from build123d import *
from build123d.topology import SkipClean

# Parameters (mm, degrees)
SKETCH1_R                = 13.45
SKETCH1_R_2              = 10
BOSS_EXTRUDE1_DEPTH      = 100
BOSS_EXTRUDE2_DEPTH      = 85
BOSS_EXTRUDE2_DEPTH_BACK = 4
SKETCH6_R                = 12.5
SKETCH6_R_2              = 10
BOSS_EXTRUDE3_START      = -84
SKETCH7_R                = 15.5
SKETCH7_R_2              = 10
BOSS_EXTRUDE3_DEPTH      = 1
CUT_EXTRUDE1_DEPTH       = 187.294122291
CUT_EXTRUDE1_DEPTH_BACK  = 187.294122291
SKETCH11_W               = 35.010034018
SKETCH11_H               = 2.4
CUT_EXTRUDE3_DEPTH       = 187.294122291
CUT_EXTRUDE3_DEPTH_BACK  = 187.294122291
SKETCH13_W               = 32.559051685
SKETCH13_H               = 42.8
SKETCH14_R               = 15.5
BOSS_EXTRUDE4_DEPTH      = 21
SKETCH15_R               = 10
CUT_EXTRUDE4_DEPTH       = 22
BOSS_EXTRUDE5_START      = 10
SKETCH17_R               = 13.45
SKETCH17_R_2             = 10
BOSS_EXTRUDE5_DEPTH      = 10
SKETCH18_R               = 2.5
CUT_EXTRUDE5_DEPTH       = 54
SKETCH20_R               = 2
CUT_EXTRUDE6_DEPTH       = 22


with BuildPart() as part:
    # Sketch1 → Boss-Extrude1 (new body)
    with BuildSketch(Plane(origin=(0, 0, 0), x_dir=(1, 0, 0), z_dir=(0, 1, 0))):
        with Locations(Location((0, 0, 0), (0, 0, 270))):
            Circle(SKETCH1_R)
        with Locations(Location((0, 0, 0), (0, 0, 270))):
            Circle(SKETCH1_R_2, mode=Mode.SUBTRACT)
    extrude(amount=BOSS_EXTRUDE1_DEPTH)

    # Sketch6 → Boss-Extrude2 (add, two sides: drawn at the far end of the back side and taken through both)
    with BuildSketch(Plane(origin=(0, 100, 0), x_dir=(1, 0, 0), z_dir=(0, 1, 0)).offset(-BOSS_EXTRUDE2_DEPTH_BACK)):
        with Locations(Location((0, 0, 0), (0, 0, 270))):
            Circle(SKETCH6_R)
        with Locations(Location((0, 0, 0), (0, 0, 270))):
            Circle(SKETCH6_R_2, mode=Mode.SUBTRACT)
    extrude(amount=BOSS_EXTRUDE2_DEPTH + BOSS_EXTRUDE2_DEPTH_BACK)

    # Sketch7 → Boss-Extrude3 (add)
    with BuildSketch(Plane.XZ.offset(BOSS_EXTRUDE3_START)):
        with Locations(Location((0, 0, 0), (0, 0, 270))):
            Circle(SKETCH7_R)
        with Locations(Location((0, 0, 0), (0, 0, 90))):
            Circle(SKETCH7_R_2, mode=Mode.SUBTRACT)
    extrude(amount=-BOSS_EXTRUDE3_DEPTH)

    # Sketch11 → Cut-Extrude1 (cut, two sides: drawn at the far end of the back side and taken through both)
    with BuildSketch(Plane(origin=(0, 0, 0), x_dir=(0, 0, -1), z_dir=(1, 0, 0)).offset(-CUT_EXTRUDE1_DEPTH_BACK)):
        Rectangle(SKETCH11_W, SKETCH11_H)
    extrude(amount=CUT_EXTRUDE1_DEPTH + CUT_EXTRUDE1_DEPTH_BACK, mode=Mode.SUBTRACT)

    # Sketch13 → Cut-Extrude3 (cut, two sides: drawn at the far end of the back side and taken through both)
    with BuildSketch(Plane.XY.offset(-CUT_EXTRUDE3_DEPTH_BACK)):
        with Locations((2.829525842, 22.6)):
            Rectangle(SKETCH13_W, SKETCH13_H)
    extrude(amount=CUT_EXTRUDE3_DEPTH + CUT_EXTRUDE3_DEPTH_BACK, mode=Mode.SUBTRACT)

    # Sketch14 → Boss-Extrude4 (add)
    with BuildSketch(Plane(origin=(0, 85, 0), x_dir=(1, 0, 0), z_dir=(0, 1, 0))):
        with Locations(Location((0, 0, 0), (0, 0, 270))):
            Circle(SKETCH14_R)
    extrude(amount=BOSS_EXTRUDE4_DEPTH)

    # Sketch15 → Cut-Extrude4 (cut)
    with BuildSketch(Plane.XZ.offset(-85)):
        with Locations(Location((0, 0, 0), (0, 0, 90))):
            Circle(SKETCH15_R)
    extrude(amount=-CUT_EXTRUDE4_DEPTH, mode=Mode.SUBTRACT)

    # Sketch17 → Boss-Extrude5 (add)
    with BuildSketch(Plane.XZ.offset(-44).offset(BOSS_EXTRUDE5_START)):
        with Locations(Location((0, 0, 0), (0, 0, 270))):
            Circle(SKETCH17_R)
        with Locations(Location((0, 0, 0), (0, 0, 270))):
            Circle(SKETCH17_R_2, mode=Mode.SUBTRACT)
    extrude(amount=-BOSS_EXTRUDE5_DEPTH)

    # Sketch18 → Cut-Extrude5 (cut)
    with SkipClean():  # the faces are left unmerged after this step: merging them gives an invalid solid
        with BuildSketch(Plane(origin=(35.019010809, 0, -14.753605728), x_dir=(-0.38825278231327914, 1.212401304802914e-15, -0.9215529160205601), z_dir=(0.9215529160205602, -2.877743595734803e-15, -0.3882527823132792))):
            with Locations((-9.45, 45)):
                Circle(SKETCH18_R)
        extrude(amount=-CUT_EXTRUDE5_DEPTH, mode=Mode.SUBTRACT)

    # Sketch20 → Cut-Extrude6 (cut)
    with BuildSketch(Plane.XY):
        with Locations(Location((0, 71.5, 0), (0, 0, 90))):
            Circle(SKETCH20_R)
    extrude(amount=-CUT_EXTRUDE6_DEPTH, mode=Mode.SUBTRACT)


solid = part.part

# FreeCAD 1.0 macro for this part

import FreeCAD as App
import Part
import Sketcher

doc = App.newDocument("Part")
body = doc.addObject("PartDesign::Body", "Body")

# Sketch on XZ plane
sketch1 = body.newObject("Sketcher::SketchObject", "Sketch")
sketch1.AttachmentSupport = (doc.getObject("XZ_Plane"), [""])
sketch1.MapMode = "FlatFace"
sketch1.addGeometry([
    Part.Circle(App.Vector(0, 0, 0), App.Vector(0, 0, 1), 13),
    Part.Circle(App.Vector(0, 0, 0), App.Vector(0, 0, 1), 10),
], False)
sketch1.addConstraint([
    Sketcher.Constraint("Coincident", 0, 3, -1, 1),
    Sketcher.Constraint("Coincident", 1, 3, -1, 1),
    Sketcher.Constraint("Diameter", 1, 20.0),
    Sketcher.Constraint("Diameter", 0, 26.9),
])
pad1 = body.newObject("PartDesign::Pad", "Pad")
pad1.Profile = sketch1
pad1.Length = 100
pad1.Reversed = True

# Sketch on XZ plane
sketch2 = body.newObject("Sketcher::SketchObject", "Sketch001")
sketch2.AttachmentSupport = (doc.getObject("XZ_Plane"), [""])
sketch2.MapMode = "FlatFace"
sketch2.AttachmentOffset = App.Placement(App.Vector(0, 0, -100), App.Rotation())
sketch2.addGeometry([
    Part.Circle(App.Vector(0, 0, 0), App.Vector(0, 0, 1), 12),
    Part.Circle(App.Vector(0, 0, 0), App.Vector(0, 0, 1), 10),
], False)
sketch2.addConstraint([
    Sketcher.Constraint("Coincident", 0, 3, -1, 1),
    Sketcher.Constraint("Coincident", 1, 3, -1, 1),
    Sketcher.Constraint("Diameter", 0, 25.0),
    Sketcher.Constraint("Diameter", 1, 20.0),
])
pad2 = body.newObject("PartDesign::Pad", "Pad001")
pad2.Profile = sketch2
pad2.Type = "TwoLengths"
pad2.Length = 85
pad2.Length2 = 4
pad2.Reversed = True

# Sketch on XZ plane
sketch3 = body.newObject("Sketcher::SketchObject", "Sketch002")
sketch3.AttachmentSupport = (doc.getObject("XZ_Plane"), [""])
sketch3.MapMode = "FlatFace"
sketch3.AttachmentOffset = App.Placement(App.Vector(0, 0, -84), App.Rotation())
sketch3.addGeometry([
    Part.Circle(App.Vector(0, 0, 0), App.Vector(0, 0, 1), 16),
    Part.Circle(App.Vector(0, 0, 0), App.Vector(0, 0, 1), 10),
], False)
sketch3.addConstraint([
    Sketcher.Constraint("Coincident", 0, 3, -1, 1),
    Sketcher.Constraint("Coincident", 1, 3, -1, 1),
    Sketcher.Constraint("Diameter", 0, 31.0),
    Sketcher.Constraint("Diameter", 1, 20.0),
])
pad3 = body.newObject("PartDesign::Pad", "Pad002")
pad3.Profile = sketch3
pad3.Length = 1
pad3.Reversed = True

# Sketch on YZ plane
sketch4 = body.newObject("Sketcher::SketchObject", "Sketch003")
sketch4.AttachmentSupport = (doc.getObject("YZ_Plane"), [""])
sketch4.MapMode = "FlatFace"
sketch4.addGeometry([
    Part.LineSegment(App.Vector(1.2, 17.5, 0), App.Vector(-1.2, 17.5, 0)),
    Part.LineSegment(App.Vector(-1.2, 17.5, 0), App.Vector(-1.2, -17.5, 0)),
    Part.LineSegment(App.Vector(-1.2, -17.5, 0), App.Vector(1.2, -17.5, 0)),
    Part.LineSegment(App.Vector(1.2, -17.5, 0), App.Vector(1.2, 17.5, 0)),
], False)
sketch4.addConstraint([
    Sketcher.Constraint("Coincident", 0, 2, 1, 1),
    Sketcher.Constraint("Coincident", 1, 2, 2, 1),
    Sketcher.Constraint("Coincident", 2, 2, 3, 1),
    Sketcher.Constraint("Coincident", 3, 2, 0, 1),
    Sketcher.Constraint("Horizontal", 0),
    Sketcher.Constraint("Vertical", 1),
    Sketcher.Constraint("Horizontal", 2),
    Sketcher.Constraint("Vertical", 3),
    Sketcher.Constraint("Symmetric", 0, 2, 2, 2, -1, 1),
    Sketcher.Constraint("DistanceX", 0, 2, 0, 1, 2.4),
    Sketcher.Constraint("DistanceY", 1, 2, 1, 1, 35.010034),
])
pocket1 = body.newObject("PartDesign::Pocket", "Pocket")
pocket1.Profile = sketch4
pocket1.Type = "ThroughAll"
pocket1.Midplane = True

# Sketch on XY plane
sketch5 = body.newObject("Sketcher::SketchObject", "Sketch004")
sketch5.AttachmentSupport = (doc.getObject("XY_Plane"), [""])
sketch5.MapMode = "FlatFace"
sketch5.addGeometry([
    Part.LineSegment(App.Vector(-13, 44, 0), App.Vector(-13, 1, 0)),
    Part.LineSegment(App.Vector(-13, 1, 0), App.Vector(19, 1, 0)),
    Part.LineSegment(App.Vector(19, 1, 0), App.Vector(19, 44, 0)),
    Part.LineSegment(App.Vector(19, 44, 0), App.Vector(-13, 44, 0)),
], False)
sketch5.addConstraint([
    Sketcher.Constraint("Coincident", 0, 2, 1, 1),
    Sketcher.Constraint("Coincident", 1, 2, 2, 1),
    Sketcher.Constraint("Coincident", 2, 2, 3, 1),
    Sketcher.Constraint("Coincident", 3, 2, 0, 1),
    Sketcher.Constraint("Vertical", 0),
    Sketcher.Constraint("Horizontal", 1),
    Sketcher.Constraint("Vertical", 2),
    Sketcher.Constraint("Horizontal", 3),
    Sketcher.Constraint("DistanceY", 0, 2, 0, 1, 42.8),
    Sketcher.Constraint("DistanceY", -1, 1, 2, 2, 44.0),
    Sketcher.Constraint("DistanceX", 0, 2, -1, 1, 13.45),
    Sketcher.Constraint("DistanceX", 1, 1, 1, 2, 32.559052),
])
pocket2 = body.newObject("PartDesign::Pocket", "Pocket001")
pocket2.Profile = sketch5
pocket2.Type = "ThroughAll"
pocket2.Midplane = True

# Sketch on XZ plane
sketch6 = body.newObject("Sketcher::SketchObject", "Sketch005")
sketch6.AttachmentSupport = (doc.getObject("XZ_Plane"), [""])
sketch6.MapMode = "FlatFace"
sketch6.AttachmentOffset = App.Placement(App.Vector(0, 0, -85), App.Rotation())
sketch6.addGeometry(Part.Circle(App.Vector(0, 0, 0), App.Vector(0, 0, 1), 16), False)
sketch6.addConstraint([
    Sketcher.Constraint("Coincident", 0, 3, -1, 1),
    Sketcher.Constraint("Diameter", 0, 31.0),
])
pad4 = body.newObject("PartDesign::Pad", "Pad003")
pad4.Profile = sketch6
pad4.Length = 21
pad4.Reversed = True

# Sketch on XZ plane
sketch7 = body.newObject("Sketcher::SketchObject", "Sketch006")
sketch7.AttachmentSupport = (doc.getObject("XZ_Plane"), [""])
sketch7.MapMode = "FlatFace"
sketch7.AttachmentOffset = App.Placement(App.Vector(0, 0, -85), App.Rotation())
sketch7.addGeometry(Part.Circle(App.Vector(0, 0, 0), App.Vector(0, 0, 1), 10), False)
sketch7.addConstraint([
    Sketcher.Constraint("Coincident", 0, 3, -1, 1),
    Sketcher.Constraint("Diameter", 0, 20.0),
])
pocket3 = body.newObject("PartDesign::Pocket", "Pocket002")
pocket3.Profile = sketch7
pocket3.Length = 22

# Sketch on XZ plane
sketch8 = body.newObject("Sketcher::SketchObject", "Sketch007")
sketch8.AttachmentSupport = (doc.getObject("XZ_Plane"), [""])
sketch8.MapMode = "FlatFace"
sketch8.AttachmentOffset = App.Placement(App.Vector(0, 0, -34), App.Rotation())
sketch8.addGeometry([
    Part.Circle(App.Vector(0, 0, 0), App.Vector(0, 0, 1), 13),
    Part.Circle(App.Vector(0, 0, 0), App.Vector(0, 0, 1), 10),
], False)
sketch8.addConstraint([
    Sketcher.Constraint("Coincident", 0, 3, -1, 1),
    Sketcher.Constraint("Coincident", 1, 3, -1, 1),
    Sketcher.Constraint("Diameter", 1, 20.0),
    Sketcher.Constraint("Diameter", 0, 26.9),
])
pad5 = body.newObject("PartDesign::Pad", "Pad004")
pad5.Profile = sketch8
pad5.Length = 10
pad5.Reversed = True

# Sketch on an angled plane
sketch9 = body.newObject("Sketcher::SketchObject", "Sketch008")
sketch9.Placement = App.Placement(App.Vector(35.019011, 0, -14.753606), App.Rotation(App.Vector(-0.388252782, 0, -0.921552916), App.Vector(0, 1, 0), App.Vector(0.921552916, 0, -0.388252782), "ZXY"))
sketch9.addGeometry(Part.Circle(App.Vector(-9.4, 45, 0), App.Vector(0, 0, 1), 2.5), False)
sketch9.addConstraint([
    Sketcher.Constraint("Diameter", 0, 5.0),
    Sketcher.Constraint("DistanceY", -1, 1, 0, 3, 45.0),
    Sketcher.Constraint("DistanceX", 0, 3, -1, 1, 9.45),
])
pocket4 = body.newObject("PartDesign::Pocket", "Pocket003")
pocket4.Profile = sketch9
pocket4.Length = 54

# Sketch on XY plane
sketch10 = body.newObject("Sketcher::SketchObject", "Sketch009")
sketch10.AttachmentSupport = (doc.getObject("XY_Plane"), [""])
sketch10.MapMode = "FlatFace"
sketch10.addGeometry(Part.Circle(App.Vector(0, 71.5, 0), App.Vector(0, 0, 1), 2), False)
sketch10.addConstraint([
    Sketcher.Constraint("PointOnObject", 0, 3, -2),
    Sketcher.Constraint("Diameter", 0, 4.0),
    Sketcher.Constraint("DistanceY", -1, 1, 0, 3, 71.5),
])
pocket5 = body.newObject("PartDesign::Pocket", "Pocket004")
pocket5.Profile = sketch10
pocket5.Length = 22

doc.recompute()
